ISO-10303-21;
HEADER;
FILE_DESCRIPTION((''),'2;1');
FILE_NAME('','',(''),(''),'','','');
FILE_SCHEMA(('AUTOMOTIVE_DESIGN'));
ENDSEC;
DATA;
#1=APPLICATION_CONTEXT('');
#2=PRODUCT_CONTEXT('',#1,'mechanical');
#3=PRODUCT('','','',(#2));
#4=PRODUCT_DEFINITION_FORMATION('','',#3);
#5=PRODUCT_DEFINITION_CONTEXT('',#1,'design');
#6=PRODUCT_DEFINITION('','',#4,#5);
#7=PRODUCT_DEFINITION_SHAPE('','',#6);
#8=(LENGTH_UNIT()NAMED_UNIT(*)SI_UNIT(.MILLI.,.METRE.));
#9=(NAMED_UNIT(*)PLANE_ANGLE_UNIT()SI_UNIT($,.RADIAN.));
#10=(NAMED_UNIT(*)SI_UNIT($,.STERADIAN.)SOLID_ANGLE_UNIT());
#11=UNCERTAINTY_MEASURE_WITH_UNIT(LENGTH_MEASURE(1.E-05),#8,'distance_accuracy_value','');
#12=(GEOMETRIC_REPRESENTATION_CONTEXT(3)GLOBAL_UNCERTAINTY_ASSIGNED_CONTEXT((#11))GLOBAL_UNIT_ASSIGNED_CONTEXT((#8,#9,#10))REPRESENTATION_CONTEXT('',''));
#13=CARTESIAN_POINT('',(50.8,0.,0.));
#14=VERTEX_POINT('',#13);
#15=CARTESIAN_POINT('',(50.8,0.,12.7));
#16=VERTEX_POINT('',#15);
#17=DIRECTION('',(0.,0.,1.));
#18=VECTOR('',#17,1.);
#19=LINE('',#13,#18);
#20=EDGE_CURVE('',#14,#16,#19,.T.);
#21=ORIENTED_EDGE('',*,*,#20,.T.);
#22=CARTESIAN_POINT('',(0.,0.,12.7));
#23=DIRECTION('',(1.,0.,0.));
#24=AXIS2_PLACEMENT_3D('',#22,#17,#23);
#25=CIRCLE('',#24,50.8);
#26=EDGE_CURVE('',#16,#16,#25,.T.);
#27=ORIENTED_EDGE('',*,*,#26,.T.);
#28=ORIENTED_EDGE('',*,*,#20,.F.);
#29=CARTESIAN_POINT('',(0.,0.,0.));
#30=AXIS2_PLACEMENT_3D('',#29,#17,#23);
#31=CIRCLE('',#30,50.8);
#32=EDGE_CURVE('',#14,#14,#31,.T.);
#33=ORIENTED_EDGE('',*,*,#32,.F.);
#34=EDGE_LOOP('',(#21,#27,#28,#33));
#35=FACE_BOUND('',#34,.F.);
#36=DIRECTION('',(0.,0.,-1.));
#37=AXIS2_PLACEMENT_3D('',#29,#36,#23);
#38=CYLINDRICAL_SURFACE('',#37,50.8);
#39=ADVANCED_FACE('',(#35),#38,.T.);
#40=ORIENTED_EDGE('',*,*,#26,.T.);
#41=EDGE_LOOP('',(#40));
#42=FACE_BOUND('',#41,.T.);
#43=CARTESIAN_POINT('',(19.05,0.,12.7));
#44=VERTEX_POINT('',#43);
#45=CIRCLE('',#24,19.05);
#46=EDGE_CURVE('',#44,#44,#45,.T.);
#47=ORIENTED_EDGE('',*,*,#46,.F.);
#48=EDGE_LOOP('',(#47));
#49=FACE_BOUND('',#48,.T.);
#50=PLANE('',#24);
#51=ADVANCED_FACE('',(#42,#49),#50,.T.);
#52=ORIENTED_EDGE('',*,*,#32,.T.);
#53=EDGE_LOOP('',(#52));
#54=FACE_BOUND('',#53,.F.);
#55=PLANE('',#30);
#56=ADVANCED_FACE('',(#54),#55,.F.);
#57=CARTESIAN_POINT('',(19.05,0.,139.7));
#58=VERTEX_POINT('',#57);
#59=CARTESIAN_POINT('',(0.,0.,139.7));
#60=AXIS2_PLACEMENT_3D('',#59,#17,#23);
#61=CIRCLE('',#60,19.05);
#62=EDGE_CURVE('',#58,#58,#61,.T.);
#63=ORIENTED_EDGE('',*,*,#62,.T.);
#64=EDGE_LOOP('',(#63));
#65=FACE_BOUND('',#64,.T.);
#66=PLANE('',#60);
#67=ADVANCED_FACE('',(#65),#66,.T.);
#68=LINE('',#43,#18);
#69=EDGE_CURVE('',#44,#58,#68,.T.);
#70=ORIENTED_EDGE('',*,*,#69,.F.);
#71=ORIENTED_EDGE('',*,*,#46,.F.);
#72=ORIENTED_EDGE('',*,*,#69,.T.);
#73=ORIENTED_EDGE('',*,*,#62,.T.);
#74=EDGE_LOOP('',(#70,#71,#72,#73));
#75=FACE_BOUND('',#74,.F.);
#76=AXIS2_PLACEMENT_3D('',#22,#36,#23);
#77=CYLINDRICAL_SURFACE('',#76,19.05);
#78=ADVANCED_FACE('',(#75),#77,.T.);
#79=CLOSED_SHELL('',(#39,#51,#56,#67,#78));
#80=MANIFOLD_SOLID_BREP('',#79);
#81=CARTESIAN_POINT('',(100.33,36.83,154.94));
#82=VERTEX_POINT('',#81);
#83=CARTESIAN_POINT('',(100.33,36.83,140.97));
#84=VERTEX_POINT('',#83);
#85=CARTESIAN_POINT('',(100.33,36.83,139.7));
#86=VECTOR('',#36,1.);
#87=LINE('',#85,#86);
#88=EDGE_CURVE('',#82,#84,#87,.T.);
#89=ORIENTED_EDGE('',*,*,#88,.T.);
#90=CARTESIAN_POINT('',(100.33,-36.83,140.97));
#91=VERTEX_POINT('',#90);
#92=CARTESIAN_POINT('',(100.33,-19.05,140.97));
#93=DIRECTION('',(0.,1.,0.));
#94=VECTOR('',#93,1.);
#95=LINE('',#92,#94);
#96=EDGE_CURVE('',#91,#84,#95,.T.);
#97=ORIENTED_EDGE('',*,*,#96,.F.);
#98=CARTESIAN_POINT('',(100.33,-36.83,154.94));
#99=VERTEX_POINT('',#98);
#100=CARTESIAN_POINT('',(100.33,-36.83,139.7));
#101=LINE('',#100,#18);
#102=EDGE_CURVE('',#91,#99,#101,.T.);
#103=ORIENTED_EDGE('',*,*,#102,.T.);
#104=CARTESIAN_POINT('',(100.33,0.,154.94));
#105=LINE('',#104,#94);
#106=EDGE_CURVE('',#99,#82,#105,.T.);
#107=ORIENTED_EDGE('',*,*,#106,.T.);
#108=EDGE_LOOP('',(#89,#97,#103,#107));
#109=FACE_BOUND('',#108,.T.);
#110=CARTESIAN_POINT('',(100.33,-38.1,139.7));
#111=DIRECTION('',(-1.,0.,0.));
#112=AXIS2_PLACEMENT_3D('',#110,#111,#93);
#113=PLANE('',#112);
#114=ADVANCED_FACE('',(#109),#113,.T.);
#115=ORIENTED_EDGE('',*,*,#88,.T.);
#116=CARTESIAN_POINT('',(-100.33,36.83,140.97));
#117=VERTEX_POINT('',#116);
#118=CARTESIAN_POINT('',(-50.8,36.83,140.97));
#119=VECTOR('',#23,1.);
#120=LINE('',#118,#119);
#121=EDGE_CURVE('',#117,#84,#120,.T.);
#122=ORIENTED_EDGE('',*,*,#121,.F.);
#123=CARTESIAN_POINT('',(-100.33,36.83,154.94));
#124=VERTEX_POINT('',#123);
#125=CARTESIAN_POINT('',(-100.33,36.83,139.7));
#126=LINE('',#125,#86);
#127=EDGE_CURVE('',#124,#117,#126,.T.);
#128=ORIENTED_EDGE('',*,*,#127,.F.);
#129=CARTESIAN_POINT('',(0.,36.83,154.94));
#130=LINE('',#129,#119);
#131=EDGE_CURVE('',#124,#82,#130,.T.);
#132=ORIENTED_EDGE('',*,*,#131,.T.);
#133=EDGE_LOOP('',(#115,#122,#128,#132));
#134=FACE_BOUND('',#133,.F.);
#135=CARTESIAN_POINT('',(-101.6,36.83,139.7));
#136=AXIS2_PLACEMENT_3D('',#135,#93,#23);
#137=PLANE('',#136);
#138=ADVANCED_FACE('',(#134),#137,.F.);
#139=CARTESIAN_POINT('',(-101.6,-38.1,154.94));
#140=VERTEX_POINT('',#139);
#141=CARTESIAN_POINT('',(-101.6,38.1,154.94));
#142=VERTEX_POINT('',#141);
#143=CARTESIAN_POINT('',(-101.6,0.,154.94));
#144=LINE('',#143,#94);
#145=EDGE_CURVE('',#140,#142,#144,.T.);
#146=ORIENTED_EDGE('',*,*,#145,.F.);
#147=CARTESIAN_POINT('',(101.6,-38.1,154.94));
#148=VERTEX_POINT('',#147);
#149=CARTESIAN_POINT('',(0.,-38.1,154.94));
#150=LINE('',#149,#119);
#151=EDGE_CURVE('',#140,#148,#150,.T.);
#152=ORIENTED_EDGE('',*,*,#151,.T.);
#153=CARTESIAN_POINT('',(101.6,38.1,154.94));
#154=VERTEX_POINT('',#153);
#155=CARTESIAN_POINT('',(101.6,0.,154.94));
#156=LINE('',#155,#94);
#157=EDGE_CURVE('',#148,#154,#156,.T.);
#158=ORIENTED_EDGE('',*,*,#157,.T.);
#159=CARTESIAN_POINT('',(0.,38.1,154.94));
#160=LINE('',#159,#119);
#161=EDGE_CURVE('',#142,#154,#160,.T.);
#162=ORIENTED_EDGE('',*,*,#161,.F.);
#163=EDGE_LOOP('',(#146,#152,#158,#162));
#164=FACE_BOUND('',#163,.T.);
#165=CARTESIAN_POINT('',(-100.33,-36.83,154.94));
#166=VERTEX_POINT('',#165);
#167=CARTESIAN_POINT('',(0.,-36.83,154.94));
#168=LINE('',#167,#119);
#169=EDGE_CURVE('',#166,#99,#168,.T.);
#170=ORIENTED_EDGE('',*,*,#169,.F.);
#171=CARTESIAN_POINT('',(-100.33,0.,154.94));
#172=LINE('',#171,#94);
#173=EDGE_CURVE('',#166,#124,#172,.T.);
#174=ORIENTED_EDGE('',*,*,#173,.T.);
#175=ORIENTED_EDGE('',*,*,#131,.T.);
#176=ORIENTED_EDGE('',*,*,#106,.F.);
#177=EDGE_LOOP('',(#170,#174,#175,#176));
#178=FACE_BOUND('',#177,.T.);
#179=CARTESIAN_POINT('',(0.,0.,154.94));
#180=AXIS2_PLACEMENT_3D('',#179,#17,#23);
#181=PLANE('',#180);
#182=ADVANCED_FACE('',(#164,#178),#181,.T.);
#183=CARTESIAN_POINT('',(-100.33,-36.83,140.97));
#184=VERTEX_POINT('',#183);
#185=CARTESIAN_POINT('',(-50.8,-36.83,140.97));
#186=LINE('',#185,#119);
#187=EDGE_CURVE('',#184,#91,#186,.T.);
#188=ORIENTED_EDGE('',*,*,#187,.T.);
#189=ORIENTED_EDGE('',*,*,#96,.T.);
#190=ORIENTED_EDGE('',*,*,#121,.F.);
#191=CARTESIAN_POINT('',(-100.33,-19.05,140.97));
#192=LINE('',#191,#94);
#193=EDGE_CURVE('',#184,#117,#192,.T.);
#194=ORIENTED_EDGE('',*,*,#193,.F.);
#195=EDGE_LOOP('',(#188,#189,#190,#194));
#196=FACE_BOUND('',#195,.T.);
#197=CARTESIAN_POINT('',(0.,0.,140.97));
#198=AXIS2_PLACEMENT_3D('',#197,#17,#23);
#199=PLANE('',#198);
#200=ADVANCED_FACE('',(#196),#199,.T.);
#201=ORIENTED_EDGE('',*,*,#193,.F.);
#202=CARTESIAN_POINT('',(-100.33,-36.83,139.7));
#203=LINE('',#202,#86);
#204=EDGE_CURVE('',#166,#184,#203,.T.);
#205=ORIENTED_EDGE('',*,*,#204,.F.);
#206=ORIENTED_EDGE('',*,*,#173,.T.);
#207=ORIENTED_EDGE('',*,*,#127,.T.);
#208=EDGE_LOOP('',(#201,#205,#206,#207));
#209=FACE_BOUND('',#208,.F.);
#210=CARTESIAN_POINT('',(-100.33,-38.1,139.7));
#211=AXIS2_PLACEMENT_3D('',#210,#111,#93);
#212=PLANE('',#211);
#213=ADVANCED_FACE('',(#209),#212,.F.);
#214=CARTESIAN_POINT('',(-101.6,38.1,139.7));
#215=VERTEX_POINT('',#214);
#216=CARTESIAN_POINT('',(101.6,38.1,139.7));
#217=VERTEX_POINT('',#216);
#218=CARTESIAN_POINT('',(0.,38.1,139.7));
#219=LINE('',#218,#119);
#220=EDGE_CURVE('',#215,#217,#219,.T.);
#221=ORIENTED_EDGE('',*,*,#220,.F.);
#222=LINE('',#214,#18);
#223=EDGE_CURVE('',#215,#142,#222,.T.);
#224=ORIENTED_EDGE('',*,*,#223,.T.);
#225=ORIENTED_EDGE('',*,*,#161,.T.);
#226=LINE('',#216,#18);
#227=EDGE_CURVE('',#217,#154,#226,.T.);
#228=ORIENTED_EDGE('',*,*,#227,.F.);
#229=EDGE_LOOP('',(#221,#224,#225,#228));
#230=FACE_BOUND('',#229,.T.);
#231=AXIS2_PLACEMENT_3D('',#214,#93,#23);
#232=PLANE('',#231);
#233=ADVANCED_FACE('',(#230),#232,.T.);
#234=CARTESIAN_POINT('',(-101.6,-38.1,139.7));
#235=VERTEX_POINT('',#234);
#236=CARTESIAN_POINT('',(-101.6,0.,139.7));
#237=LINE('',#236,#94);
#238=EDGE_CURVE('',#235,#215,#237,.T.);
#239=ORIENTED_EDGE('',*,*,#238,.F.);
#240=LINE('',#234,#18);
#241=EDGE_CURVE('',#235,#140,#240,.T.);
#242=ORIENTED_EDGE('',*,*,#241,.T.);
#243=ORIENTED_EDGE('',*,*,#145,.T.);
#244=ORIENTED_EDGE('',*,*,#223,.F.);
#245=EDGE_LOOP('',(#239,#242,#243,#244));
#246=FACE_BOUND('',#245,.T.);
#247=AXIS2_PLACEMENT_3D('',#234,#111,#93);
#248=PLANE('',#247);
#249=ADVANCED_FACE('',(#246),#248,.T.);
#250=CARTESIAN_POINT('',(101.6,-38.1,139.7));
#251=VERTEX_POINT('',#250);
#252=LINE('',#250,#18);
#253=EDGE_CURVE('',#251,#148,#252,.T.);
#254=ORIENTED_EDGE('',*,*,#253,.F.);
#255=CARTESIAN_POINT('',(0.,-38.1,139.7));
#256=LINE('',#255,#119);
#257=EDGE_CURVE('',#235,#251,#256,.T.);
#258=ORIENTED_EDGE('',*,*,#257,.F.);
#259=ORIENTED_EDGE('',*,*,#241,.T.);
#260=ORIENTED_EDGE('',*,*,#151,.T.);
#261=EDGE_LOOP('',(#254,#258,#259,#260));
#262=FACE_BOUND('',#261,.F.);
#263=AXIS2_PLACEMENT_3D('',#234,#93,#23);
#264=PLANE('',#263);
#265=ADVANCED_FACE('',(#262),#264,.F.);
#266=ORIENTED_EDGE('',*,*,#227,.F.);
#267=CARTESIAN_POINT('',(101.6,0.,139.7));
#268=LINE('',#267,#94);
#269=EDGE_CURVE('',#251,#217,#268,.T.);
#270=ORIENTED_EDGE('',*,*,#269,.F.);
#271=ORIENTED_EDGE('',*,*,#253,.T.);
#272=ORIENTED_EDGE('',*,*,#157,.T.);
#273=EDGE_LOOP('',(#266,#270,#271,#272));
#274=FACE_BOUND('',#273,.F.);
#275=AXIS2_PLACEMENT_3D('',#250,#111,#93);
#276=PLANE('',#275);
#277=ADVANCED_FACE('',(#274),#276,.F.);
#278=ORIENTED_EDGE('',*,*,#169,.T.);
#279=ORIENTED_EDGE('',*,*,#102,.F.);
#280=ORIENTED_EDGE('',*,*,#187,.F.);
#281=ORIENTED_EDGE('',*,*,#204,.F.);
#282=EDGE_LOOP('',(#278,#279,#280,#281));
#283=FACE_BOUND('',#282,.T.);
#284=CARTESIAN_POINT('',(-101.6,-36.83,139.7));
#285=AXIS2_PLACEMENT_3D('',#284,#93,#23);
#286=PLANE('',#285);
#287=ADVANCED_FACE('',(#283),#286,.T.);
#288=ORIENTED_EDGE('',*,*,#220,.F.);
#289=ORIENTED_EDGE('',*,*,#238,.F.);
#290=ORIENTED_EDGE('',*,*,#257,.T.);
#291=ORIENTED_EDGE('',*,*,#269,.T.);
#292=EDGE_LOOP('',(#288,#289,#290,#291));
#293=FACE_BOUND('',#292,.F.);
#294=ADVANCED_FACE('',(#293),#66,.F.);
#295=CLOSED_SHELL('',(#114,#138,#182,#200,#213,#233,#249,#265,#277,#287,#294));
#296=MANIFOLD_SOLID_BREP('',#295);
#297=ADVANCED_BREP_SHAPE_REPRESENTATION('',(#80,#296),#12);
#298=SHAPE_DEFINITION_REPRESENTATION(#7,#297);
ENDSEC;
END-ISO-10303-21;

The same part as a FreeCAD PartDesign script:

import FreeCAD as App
import Part
import Sketcher
from FreeCAD import Vector
Q = App.Units.Quantity


def faces_at(feature, points):
    """Names of the faces that lie closest to the given points."""
    faces = feature.Shape.Faces
    near = lambda p: min(range(len(faces)), key=lambda i: faces[i].distToShape(Part.Vertex(*p))[0])
    return sorted({f"Face{near(p) + 1}" for p in points})


def add_polygon(sketch, points):
    """Adds a closed chain of lines whose ends are joined by coincident constraints."""
    first, n = sketch.GeometryCount, len(points)
    for a, b in zip(points, points[1:] + points[:1]):
        sketch.addGeometry(Part.LineSegment(App.Vector(*a, 0), App.Vector(*b, 0)), False)
    for i in range(n):
        sketch.addConstraint(Sketcher.Constraint("Coincident", first + i, 2, first + (i + 1) % n, 1))

doc = App.newDocument("Part")
params = doc.addObject("Spreadsheet::Sheet", "Params")
for row, (alias, value) in enumerate([
    ("sketch1_diameter", "4 in"),
    ("pad1_length", "0.5 in"),
    ("sketch2_diameter", "1.5 in"),
    ("pad2_length", "5 in"),
    ("sketch3_width", "8 in"),
    ("sketch3_height", "3 in"),
    ("pad3_length", "0.6 in"),
    ("thickness_wall", "0.05 in"),
], start=1):
    params.set(f"A{row}", alias)
    params.set(f"B{row}", "=" + value)
    params.setAlias(f"B{row}", alias)

body = doc.addObject("PartDesign::Body", "Body")

sketch1 = body.newObject("Sketcher::SketchObject", "Sketch")
sketch1.AttachmentSupport = (doc.getObject("XY_Plane"), [""])
sketch1.MapMode = "FlatFace"
sketch1.addGeometry(Part.Circle(Vector(0, 0, 0), Vector(0, 0, 1), 51), False)
sketch1.addConstraint([
    Sketcher.Constraint("Coincident", 0, 3, -1, 1),
    Sketcher.Constraint("Diameter", 0, Q("4 in")),
])
sketch1.setExpression("Constraints[1]", "Params.sketch1_diameter")
pad1 = body.newObject("PartDesign::Pad", "Pad")
pad1.Profile = sketch1
pad1.setExpression("Length", "Params.pad1_length")

sketch2 = body.newObject("Sketcher::SketchObject", "Sketch001")
sketch2.AttachmentSupport = (doc.getObject("XY_Plane"), [""])
sketch2.MapMode = "FlatFace"
sketch2.AttachmentOffset = App.Placement(Vector(0, 0, 0.5 * 25.4), App.Rotation())
sketch2.addGeometry(Part.Circle(Vector(0, 0, 0), Vector(0, 0, 1), 19), False)
sketch2.addConstraint([
    Sketcher.Constraint("Coincident", 0, 3, -1, 1),
    Sketcher.Constraint("Diameter", 0, Q("1.5 in")),
])
sketch2.setExpression("Constraints[1]", "Params.sketch2_diameter")
pad2 = body.newObject("PartDesign::Pad", "Pad001")
pad2.Profile = sketch2
pad2.setExpression("Length", "Params.pad2_length")
body2 = doc.addObject("PartDesign::Body", "Body001")

sketch3 = body2.newObject("Sketcher::SketchObject", "Sketch002")
sketch3.AttachmentSupport = (doc.getObject("XY_Plane001"), [""])
sketch3.MapMode = "FlatFace"
sketch3.AttachmentOffset = App.Placement(Vector(0, 0, 5.5 * 25.4), App.Rotation())
add_polygon(sketch3, [(-102, 38), (-102, -38), (102, -38), (102, 38)])
sketch3.addConstraint([
    Sketcher.Constraint("Vertical", 0),
    Sketcher.Constraint("Horizontal", 1),
    Sketcher.Constraint("Vertical", 2),
    Sketcher.Constraint("Horizontal", 3),
    Sketcher.Constraint("Symmetric", 0, 2, 2, 2, -1, 1),
    Sketcher.Constraint("DistanceX", 1, 1, 1, 2, Q("8 in")),
    Sketcher.Constraint("DistanceY", 0, 2, 0, 1, Q("3 in")),
])
sketch3.setExpression("Constraints[9]", "Params.sketch3_width")
sketch3.setExpression("Constraints[10]", "Params.sketch3_height")
pad3 = body2.newObject("PartDesign::Pad", "Pad002")
pad3.Profile = sketch3
pad3.setExpression("Length", "Params.pad3_length")
doc.recompute()

thickness = body2.newObject("PartDesign::Thickness", "Thickness")
thickness.Base = (pad3, faces_at(pad3, [(0, 0, 154.94)]))
thickness.setExpression("Value", "Params.thickness_wall")
thickness.Reversed = True
thickness.Join = "Arc"

doc.recompute()
